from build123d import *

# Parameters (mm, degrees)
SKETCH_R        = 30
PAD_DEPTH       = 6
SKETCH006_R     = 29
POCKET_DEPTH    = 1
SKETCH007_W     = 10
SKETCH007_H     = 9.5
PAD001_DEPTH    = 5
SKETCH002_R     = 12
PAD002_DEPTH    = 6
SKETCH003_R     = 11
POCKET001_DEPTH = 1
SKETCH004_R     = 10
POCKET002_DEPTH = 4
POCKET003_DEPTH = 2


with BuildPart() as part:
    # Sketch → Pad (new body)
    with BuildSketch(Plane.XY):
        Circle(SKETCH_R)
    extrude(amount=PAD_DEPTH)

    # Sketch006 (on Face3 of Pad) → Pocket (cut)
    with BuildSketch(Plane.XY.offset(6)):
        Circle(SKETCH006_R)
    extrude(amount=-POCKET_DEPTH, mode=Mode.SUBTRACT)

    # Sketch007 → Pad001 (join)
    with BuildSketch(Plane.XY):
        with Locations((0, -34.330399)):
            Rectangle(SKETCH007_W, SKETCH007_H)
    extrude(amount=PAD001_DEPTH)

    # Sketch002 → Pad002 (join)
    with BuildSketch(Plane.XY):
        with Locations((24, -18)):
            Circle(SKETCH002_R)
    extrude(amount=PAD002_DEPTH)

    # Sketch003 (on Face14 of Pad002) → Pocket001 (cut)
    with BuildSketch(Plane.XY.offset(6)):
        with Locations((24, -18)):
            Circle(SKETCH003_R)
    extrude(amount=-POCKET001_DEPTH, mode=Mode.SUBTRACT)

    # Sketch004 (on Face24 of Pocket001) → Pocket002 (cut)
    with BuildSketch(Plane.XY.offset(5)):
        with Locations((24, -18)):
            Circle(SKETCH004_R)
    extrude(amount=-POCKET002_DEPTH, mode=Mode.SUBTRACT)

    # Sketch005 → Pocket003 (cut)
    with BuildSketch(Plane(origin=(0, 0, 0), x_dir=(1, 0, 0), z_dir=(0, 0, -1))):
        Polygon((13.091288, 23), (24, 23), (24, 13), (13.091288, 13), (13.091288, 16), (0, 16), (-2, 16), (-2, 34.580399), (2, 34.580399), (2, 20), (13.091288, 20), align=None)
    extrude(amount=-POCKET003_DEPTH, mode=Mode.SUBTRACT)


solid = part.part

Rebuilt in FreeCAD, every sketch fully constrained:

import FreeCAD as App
import Part
import Sketcher
Q = App.Units.Quantity


def add_polygon(sketch, points):
    """Adds a closed chain of lines whose ends are joined by coincident constraints."""
    first, n = sketch.GeometryCount, len(points)
    for a, b in zip(points, points[1:] + points[:1]):
        sketch.addGeometry(Part.LineSegment(App.Vector(*a, 0), App.Vector(*b, 0)), False)
    for i in range(n):
        sketch.addConstraint(Sketcher.Constraint("Coincident", first + i, 2, first + (i + 1) % n, 1))

doc = App.newDocument("Part")
body = doc.addObject("PartDesign::Body", "Body")

# Sketch on XY plane
sketch1 = body.newObject("Sketcher::SketchObject", "Sketch")
sketch1.AttachmentSupport = (doc.getObject("XY_Plane"), [""])
sketch1.MapMode = "FlatFace"
sketch1.addGeometry(Part.Circle(App.Vector(0, 0, 0), App.Vector(0, 0, 1), 30), False)
sketch1.addConstraint(Sketcher.Constraint("Coincident", 0, 3, -1, 1))
sketch1.addConstraint(Sketcher.Constraint("Diameter", 0, Q("60 mm")))
pad1 = body.newObject("PartDesign::Pad", "Pad")
pad1.Profile = sketch1
pad1.Length = 6

# Sketch on XY plane
sketch2 = body.newObject("Sketcher::SketchObject", "Sketch001")
sketch2.AttachmentSupport = (doc.getObject("XY_Plane"), [""])
sketch2.MapMode = "FlatFace"
sketch2.AttachmentOffset = App.Placement(App.Vector(0, 0, 6), App.Rotation())
sketch2.addGeometry(Part.Circle(App.Vector(0, 0, 0), App.Vector(0, 0, 1), 29), False)
sketch2.addConstraint(Sketcher.Constraint("Coincident", 0, 3, -1, 1))
sketch2.addConstraint(Sketcher.Constraint("Diameter", 0, Q("58 mm")))
pocket1 = body.newObject("PartDesign::Pocket", "Pocket")
pocket1.Profile = sketch2
pocket1.Length = 1

# Sketch on XY plane
sketch3 = body.newObject("Sketcher::SketchObject", "Sketch002")
sketch3.AttachmentSupport = (doc.getObject("XY_Plane"), [""])
sketch3.MapMode = "FlatFace"
add_polygon(sketch3, [(-5, -30), (-5, -39), (5, -39), (5, -30)])  # lines 0-3
sketch3.addConstraint(Sketcher.Constraint("Vertical", 0))
sketch3.addConstraint(Sketcher.Constraint("Horizontal", 1))
sketch3.addConstraint(Sketcher.Constraint("Vertical", 2))
sketch3.addConstraint(Sketcher.Constraint("Horizontal", 3))
sketch3.addConstraint(Sketcher.Constraint("DistanceX", 1, 1, 1, 2, Q("10 mm")))
sketch3.addConstraint(Sketcher.Constraint("DistanceY", 0, 2, 0, 1, Q("9.5 mm")))
sketch3.addConstraint(Sketcher.Constraint("DistanceX", 0, 2, -1, 1, Q("5 mm")))
sketch3.addConstraint(Sketcher.Constraint("DistanceY", 0, 2, -1, 1, Q("39.080399 mm")))
pad2 = body.newObject("PartDesign::Pad", "Pad001")
pad2.Profile = sketch3
pad2.Length = 5

# Sketch on XY plane
sketch4 = body.newObject("Sketcher::SketchObject", "Sketch003")
sketch4.AttachmentSupport = (doc.getObject("XY_Plane"), [""])
sketch4.MapMode = "FlatFace"
sketch4.addGeometry(Part.Circle(App.Vector(24, -18, 0), App.Vector(0, 0, 1), 12), False)
sketch4.addConstraint(Sketcher.Constraint("Diameter", 0, Q("24 mm")))
sketch4.addConstraint(Sketcher.Constraint("DistanceX", -1, 1, 0, 3, Q("24 mm")))
sketch4.addConstraint(Sketcher.Constraint("DistanceY", 0, 3, -1, 1, Q("18 mm")))
pad3 = body.newObject("PartDesign::Pad", "Pad002")
pad3.Profile = sketch4
pad3.Length = 6

# Sketch on XY plane
sketch5 = body.newObject("Sketcher::SketchObject", "Sketch004")
sketch5.AttachmentSupport = (doc.getObject("XY_Plane"), [""])
sketch5.MapMode = "FlatFace"
sketch5.AttachmentOffset = App.Placement(App.Vector(0, 0, 6), App.Rotation())
sketch5.addGeometry(Part.Circle(App.Vector(24, -18, 0), App.Vector(0, 0, 1), 11), False)
sketch5.addConstraint(Sketcher.Constraint("Diameter", 0, Q("22 mm")))
sketch5.addConstraint(Sketcher.Constraint("DistanceX", -1, 1, 0, 3, Q("24 mm")))
sketch5.addConstraint(Sketcher.Constraint("DistanceY", 0, 3, -1, 1, Q("18 mm")))
pocket2 = body.newObject("PartDesign::Pocket", "Pocket001")
pocket2.Profile = sketch5
pocket2.Length = 1

# Sketch on XY plane
sketch6 = body.newObject("Sketcher::SketchObject", "Sketch005")
sketch6.AttachmentSupport = (doc.getObject("XY_Plane"), [""])
sketch6.MapMode = "FlatFace"
sketch6.AttachmentOffset = App.Placement(App.Vector(0, 0, 5), App.Rotation())
sketch6.addGeometry(Part.Circle(App.Vector(24, -18, 0), App.Vector(0, 0, 1), 10), False)
sketch6.addConstraint(Sketcher.Constraint("Diameter", 0, Q("20 mm")))
sketch6.addConstraint(Sketcher.Constraint("DistanceX", -1, 1, 0, 3, Q("24 mm")))
sketch6.addConstraint(Sketcher.Constraint("DistanceY", 0, 3, -1, 1, Q("18 mm")))
pocket3 = body.newObject("PartDesign::Pocket", "Pocket002")
pocket3.Profile = sketch6
pocket3.Length = 4

# Sketch on XY plane
sketch7 = body.newObject("Sketcher::SketchObject", "Sketch006")
sketch7.AttachmentSupport = (doc.getObject("XY_Plane"), [""])
sketch7.MapMode = "FlatFace"
add_polygon(sketch7, [(24, -23), (13.1, -23), (13.1, -20), (2, -20), (2, -34.6), (-2, -34.6), (-2, -16), (13.1, -16), (13.1, -13), (24, -13)])  # lines 0-9
sketch7.addConstraint(Sketcher.Constraint("Horizontal", 0))
sketch7.addConstraint(Sketcher.Constraint("Vertical", 1))
sketch7.addConstraint(Sketcher.Constraint("Horizontal", 2))
sketch7.addConstraint(Sketcher.Constraint("Vertical", 3))
sketch7.addConstraint(Sketcher.Constraint("Horizontal", 4))
sketch7.addConstraint(Sketcher.Constraint("Vertical", 5))
sketch7.addConstraint(Sketcher.Constraint("Horizontal", 6))
sketch7.addConstraint(Sketcher.Constraint("Vertical", 7))
sketch7.addConstraint(Sketcher.Constraint("Horizontal", 8))
sketch7.addConstraint(Sketcher.Constraint("Vertical", 9))
sketch7.addConstraint(Sketcher.Constraint("Vertical", 1, 2, 6, 2))
sketch7.addConstraint(Sketcher.Constraint("Equal", 1, 7))
sketch7.addConstraint(Sketcher.Constraint("DistanceX", 4, 2, 4, 1, Q("4 mm")))
sketch7.addConstraint(Sketcher.Constraint("DistanceY", 1, 1, 1, 2, Q("3 mm")))
sketch7.addConstraint(Sketcher.Constraint("DistanceY", 9, 2, 9, 1, Q("10 mm")))
sketch7.addConstraint(Sketcher.Constraint("DistanceY", 0, 2, -1, 1, Q("23 mm")))
sketch7.addConstraint(Sketcher.Constraint("DistanceX", -1, 1, 2, 2, Q("2 mm")))
sketch7.addConstraint(Sketcher.Constraint("DistanceX", -1, 1, 8, 2, Q("24 mm")))
sketch7.addConstraint(Sketcher.Constraint("DistanceY", 3, 2, 3, 1, Q("14.580399 mm")))
sketch7.addConstraint(Sketcher.Constraint("DistanceX", 0, 2, 0, 1, Q("10.908712 mm")))
pocket4 = body.newObject("PartDesign::Pocket", "Pocket003")
pocket4.Profile = sketch7
pocket4.Length = 2
pocket4.Reversed = True

doc.recompute()
